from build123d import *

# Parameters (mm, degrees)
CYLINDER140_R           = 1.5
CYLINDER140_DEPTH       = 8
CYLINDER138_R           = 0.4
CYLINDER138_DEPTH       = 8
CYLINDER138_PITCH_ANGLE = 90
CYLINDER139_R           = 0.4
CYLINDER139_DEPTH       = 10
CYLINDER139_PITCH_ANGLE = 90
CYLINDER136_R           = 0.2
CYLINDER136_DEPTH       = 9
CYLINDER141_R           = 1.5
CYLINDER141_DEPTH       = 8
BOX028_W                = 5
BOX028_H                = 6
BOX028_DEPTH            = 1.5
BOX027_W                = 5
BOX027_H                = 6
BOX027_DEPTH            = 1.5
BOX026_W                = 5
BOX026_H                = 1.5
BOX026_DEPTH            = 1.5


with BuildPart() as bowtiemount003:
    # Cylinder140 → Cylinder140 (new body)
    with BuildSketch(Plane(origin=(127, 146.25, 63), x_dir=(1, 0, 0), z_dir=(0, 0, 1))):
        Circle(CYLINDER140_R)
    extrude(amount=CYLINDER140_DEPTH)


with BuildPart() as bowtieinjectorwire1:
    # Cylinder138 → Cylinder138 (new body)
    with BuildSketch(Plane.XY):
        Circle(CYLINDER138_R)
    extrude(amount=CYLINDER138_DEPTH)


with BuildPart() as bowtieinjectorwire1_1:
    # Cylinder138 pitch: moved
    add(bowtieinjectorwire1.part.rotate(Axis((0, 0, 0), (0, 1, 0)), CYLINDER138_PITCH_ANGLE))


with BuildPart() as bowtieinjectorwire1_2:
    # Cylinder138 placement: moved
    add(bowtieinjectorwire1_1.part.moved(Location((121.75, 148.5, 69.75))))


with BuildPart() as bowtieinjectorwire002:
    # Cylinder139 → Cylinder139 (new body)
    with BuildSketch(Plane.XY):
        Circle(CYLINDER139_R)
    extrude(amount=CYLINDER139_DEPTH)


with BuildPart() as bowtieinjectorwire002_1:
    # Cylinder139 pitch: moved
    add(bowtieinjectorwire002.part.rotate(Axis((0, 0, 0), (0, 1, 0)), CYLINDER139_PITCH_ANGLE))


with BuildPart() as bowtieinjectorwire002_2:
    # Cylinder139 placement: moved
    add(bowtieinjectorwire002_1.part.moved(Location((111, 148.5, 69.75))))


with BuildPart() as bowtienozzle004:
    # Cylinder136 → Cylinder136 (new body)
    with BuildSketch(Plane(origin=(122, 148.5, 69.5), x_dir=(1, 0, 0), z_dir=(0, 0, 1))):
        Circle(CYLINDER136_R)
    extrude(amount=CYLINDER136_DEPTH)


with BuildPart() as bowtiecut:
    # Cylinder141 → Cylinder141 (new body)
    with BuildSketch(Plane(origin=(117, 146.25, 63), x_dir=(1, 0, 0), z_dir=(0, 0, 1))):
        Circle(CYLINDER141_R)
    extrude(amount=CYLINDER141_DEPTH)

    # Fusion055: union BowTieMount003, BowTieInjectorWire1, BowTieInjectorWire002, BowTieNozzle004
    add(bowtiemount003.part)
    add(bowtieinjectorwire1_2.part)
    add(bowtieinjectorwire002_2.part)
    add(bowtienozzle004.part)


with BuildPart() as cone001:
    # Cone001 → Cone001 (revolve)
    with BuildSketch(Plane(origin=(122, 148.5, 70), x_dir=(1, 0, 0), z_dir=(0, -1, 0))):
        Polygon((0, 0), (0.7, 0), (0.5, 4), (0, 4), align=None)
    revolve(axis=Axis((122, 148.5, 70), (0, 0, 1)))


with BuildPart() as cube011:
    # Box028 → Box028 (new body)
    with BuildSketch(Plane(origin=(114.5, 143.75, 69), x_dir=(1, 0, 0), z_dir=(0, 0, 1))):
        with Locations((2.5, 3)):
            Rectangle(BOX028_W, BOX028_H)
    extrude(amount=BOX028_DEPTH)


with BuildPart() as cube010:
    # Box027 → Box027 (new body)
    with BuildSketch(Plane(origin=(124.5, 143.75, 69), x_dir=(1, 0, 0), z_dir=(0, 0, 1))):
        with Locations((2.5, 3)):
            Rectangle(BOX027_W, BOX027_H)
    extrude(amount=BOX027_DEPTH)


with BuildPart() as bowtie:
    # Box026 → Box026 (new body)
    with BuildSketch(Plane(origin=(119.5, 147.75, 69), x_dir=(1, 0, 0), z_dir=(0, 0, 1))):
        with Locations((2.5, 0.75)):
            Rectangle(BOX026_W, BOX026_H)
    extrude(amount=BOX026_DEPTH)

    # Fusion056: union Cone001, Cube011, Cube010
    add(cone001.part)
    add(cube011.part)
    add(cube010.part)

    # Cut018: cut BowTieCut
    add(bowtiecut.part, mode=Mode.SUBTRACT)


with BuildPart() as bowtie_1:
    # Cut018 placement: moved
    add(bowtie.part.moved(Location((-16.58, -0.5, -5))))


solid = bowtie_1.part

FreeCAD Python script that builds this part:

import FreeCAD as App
import Part
import Sketcher

V = App.Vector
Q = App.Units.Quantity

doc = App.newDocument("Part")
body = doc.addObject("PartDesign::Body", "Body")

# Sketch on XY plane
sketch1 = body.newObject("Sketcher::SketchObject", "Sketch")
sketch1.AttachmentSupport = (doc.getObject("XY_Plane"), [""])
sketch1.MapMode = "FlatFace"
sketch1.AttachmentOffset = App.Placement(V(0, 0, 63), App.Rotation())
sketch1.addGeometry(Part.Circle(V(127, 146.2, 0), V(0, 0, 1), 1.5), False)
sketch1.addConstraint([
    Sketcher.Constraint("Diameter", 0, Q("3 mm")),
    Sketcher.Constraint("DistanceX", -1, 1, 0, 3, Q("127 mm")),
    Sketcher.Constraint("DistanceY", -1, 1, 0, 3, Q("146.25 mm")),
])
pad1 = body.newObject("PartDesign::Pad", "Pad")
pad1.Profile = sketch1
pad1.Length = 8
body2 = doc.addObject("PartDesign::Body", "Body001")

# Sketch on XY plane
sketch2 = body2.newObject("Sketcher::SketchObject", "Sketch001")
sketch2.AttachmentSupport = (doc.getObject("XY_Plane001"), [""])
sketch2.MapMode = "FlatFace"
sketch2.addGeometry(Part.Circle(V(0, 0, 0), V(0, 0, 1), 0.4), False)
sketch2.addConstraint([
    Sketcher.Constraint("Coincident", 0, 3, -1, 1),
    Sketcher.Constraint("Diameter", 0, Q("0.8 mm")),
])
pad2 = body2.newObject("PartDesign::Pad", "Pad001")
pad2.Profile = sketch2
pad2.Length = 8
body3 = doc.addObject("PartDesign::Body", "Body002")
doc.recompute()

body2.Placement = App.Placement(V(0, 0, 0), App.Rotation(V(0, 1, 0), 90))
boolean = body3.newObject("PartDesign::Boolean", "Boolean")
boolean.Type = "Fuse"
boolean.addObjects([body2])
body4 = doc.addObject("PartDesign::Body", "Body003")
doc.recompute()

body3.Placement = App.Placement(V(121.75, 148.5, 69.75), App.Rotation(V(0, 0, 1), 0))
boolean2 = body4.newObject("PartDesign::Boolean", "Boolean001")
boolean2.Type = "Fuse"
boolean2.addObjects([body3])
body5 = doc.addObject("PartDesign::Body", "Body004")

# Sketch on XY plane
sketch3 = body5.newObject("Sketcher::SketchObject", "Sketch002")
sketch3.AttachmentSupport = (doc.getObject("XY_Plane004"), [""])
sketch3.MapMode = "FlatFace"
sketch3.addGeometry(Part.Circle(V(0, 0, 0), V(0, 0, 1), 0.4), False)
sketch3.addConstraint([
    Sketcher.Constraint("Coincident", 0, 3, -1, 1),
    Sketcher.Constraint("Diameter", 0, Q("0.8 mm")),
])
pad3 = body5.newObject("PartDesign::Pad", "Pad002")
pad3.Profile = sketch3
pad3.Length = 10
body6 = doc.addObject("PartDesign::Body", "Body005")
doc.recompute()

body5.Placement = App.Placement(V(0, 0, 0), App.Rotation(V(0, 1, 0), 90))
boolean3 = body6.newObject("PartDesign::Boolean", "Boolean002")
boolean3.Type = "Fuse"
boolean3.addObjects([body5])
body7 = doc.addObject("PartDesign::Body", "Body006")
doc.recompute()

body6.Placement = App.Placement(V(111, 148.5, 69.75), App.Rotation(V(0, 0, 1), 0))
boolean4 = body7.newObject("PartDesign::Boolean", "Boolean003")
boolean4.Type = "Fuse"
boolean4.addObjects([body6])
body8 = doc.addObject("PartDesign::Body", "Body007")

# Sketch on XY plane
sketch4 = body8.newObject("Sketcher::SketchObject", "Sketch003")
sketch4.AttachmentSupport = (doc.getObject("XY_Plane007"), [""])
sketch4.MapMode = "FlatFace"
sketch4.AttachmentOffset = App.Placement(V(0, 0, 69.5), App.Rotation())
sketch4.addGeometry(Part.Circle(V(122, 148.5, 0), V(0, 0, 1), 0.2), False)
sketch4.addConstraint([
    Sketcher.Constraint("Diameter", 0, Q("0.4 mm")),
    Sketcher.Constraint("DistanceX", -1, 1, 0, 3, Q("122 mm")),
    Sketcher.Constraint("DistanceY", -1, 1, 0, 3, Q("148.5 mm")),
])
pad4 = body8.newObject("PartDesign::Pad", "Pad003")
pad4.Profile = sketch4
pad4.Length = 9
body9 = doc.addObject("PartDesign::Body", "Body008")
body9.AllowCompound = True

# Sketch on XY plane
sketch5 = body9.newObject("Sketcher::SketchObject", "Sketch004")
sketch5.AttachmentSupport = (doc.getObject("XY_Plane008"), [""])
sketch5.MapMode = "FlatFace"
sketch5.AttachmentOffset = App.Placement(V(0, 0, 63), App.Rotation())
sketch5.addGeometry(Part.Circle(V(117, 146.2, 0), V(0, 0, 1), 1.5), False)
sketch5.addConstraint([
    Sketcher.Constraint("Diameter", 0, Q("3 mm")),
    Sketcher.Constraint("DistanceX", -1, 1, 0, 3, Q("117 mm")),
    Sketcher.Constraint("DistanceY", -1, 1, 0, 3, Q("146.25 mm")),
])
pad5 = body9.newObject("PartDesign::Pad", "Pad004")
pad5.Profile = sketch5
pad5.Length = 8
doc.recompute()

boolean5 = body9.newObject("PartDesign::Boolean", "Boolean004")
boolean5.Type = "Fuse"
boolean5.addObjects([body])
doc.recompute()

boolean6 = body9.newObject("PartDesign::Boolean", "Boolean005")
boolean6.Type = "Fuse"
boolean6.addObjects([body4])
doc.recompute()

boolean7 = body9.newObject("PartDesign::Boolean", "Boolean006")
boolean7.Type = "Fuse"
boolean7.addObjects([body7])
doc.recompute()

boolean8 = body9.newObject("PartDesign::Boolean", "Boolean007")
boolean8.Type = "Fuse"
boolean8.addObjects([body8])
body10 = doc.addObject("PartDesign::Body", "Body009")

# Sketch on XZ plane
sketch6 = body10.newObject("Sketcher::SketchObject", "Sketch005")
sketch6.AttachmentSupport = (doc.getObject("XZ_Plane009"), [""])
sketch6.MapMode = "FlatFace"
sketch6.AttachmentOffset = App.Placement(V(0, 0, -148.5), App.Rotation())
sketch6.addGeometry([
    Part.LineSegment(V(122, 70, 0), V(122.7, 70, 0)),
    Part.LineSegment(V(122.7, 70, 0), V(122.5, 74, 0)),
    Part.LineSegment(V(122.5, 74, 0), V(122, 74, 0)),
    Part.LineSegment(V(122, 74, 0), V(122, 70, 0)),
], False)
sketch6.addGeometry(Part.LineSegment(V(122, 70, 0), V(122, 74, 0)), True)  # axis
sketch6.addConstraint([
    Sketcher.Constraint("Coincident", 0, 2, 1, 1),
    Sketcher.Constraint("Coincident", 1, 2, 2, 1),
    Sketcher.Constraint("Coincident", 2, 2, 3, 1),
    Sketcher.Constraint("Coincident", 3, 2, 0, 1),
    Sketcher.Constraint("Horizontal", 0),
    Sketcher.Constraint("Horizontal", 2),
    Sketcher.Constraint("Vertical", 3),
    Sketcher.Constraint("Vertical", 4),
    Sketcher.Constraint("Coincident", 4, 1, 3, 2),
    Sketcher.Constraint("Horizontal", 1, 2, 4, 2),
    Sketcher.Constraint("DistanceY", 3, 2, 3, 1, Q("4 mm")),
    Sketcher.Constraint("DistanceX", 0, 1, 0, 2, Q("0.7 mm")),
    Sketcher.Constraint("DistanceX", 2, 2, 2, 1, Q("0.5 mm")),
    Sketcher.Constraint("DistanceY", -1, 1, 0, 2, Q("70 mm")),
    Sketcher.Constraint("DistanceX", -1, 1, 2, 2, Q("122 mm")),
])
revolution = body10.newObject("PartDesign::Revolution", "Revolution")
revolution.Profile = sketch6
revolution.ReferenceAxis = (sketch6, ["Axis0"])
revolution.Angle = 360
body11 = doc.addObject("PartDesign::Body", "Body010")

# Sketch on XY plane
sketch7 = body11.newObject("Sketcher::SketchObject", "Sketch006")
sketch7.AttachmentSupport = (doc.getObject("XY_Plane010"), [""])
sketch7.MapMode = "FlatFace"
sketch7.AttachmentOffset = App.Placement(V(0, 0, 69), App.Rotation())
sketch7.addGeometry([
    Part.LineSegment(V(114, 150, 0), V(114, 144, 0)),
    Part.LineSegment(V(114, 144, 0), V(120, 144, 0)),
    Part.LineSegment(V(120, 144, 0), V(120, 150, 0)),
    Part.LineSegment(V(120, 150, 0), V(114, 150, 0)),
], False)
sketch7.addConstraint([
    Sketcher.Constraint("Coincident", 0, 2, 1, 1),
    Sketcher.Constraint("Coincident", 1, 2, 2, 1),
    Sketcher.Constraint("Coincident", 2, 2, 3, 1),
    Sketcher.Constraint("Coincident", 3, 2, 0, 1),
    Sketcher.Constraint("Vertical", 0),
    Sketcher.Constraint("Horizontal", 1),
    Sketcher.Constraint("Vertical", 2),
    Sketcher.Constraint("Horizontal", 3),
    Sketcher.Constraint("DistanceX", 1, 1, 1, 2, Q("5 mm")),
    Sketcher.Constraint("DistanceY", 0, 2, 0, 1, Q("6 mm")),
    Sketcher.Constraint("DistanceX", -1, 1, 0, 2, Q("114.5 mm")),
    Sketcher.Constraint("DistanceY", -1, 1, 0, 2, Q("143.75 mm")),
])
pad6 = body11.newObject("PartDesign::Pad", "Pad005")
pad6.Profile = sketch7
pad6.Length = 1.5
body12 = doc.addObject("PartDesign::Body", "Body011")

# Sketch on XY plane
sketch8 = body12.newObject("Sketcher::SketchObject", "Sketch007")
sketch8.AttachmentSupport = (doc.getObject("XY_Plane011"), [""])
sketch8.MapMode = "FlatFace"
sketch8.AttachmentOffset = App.Placement(V(0, 0, 69), App.Rotation())
sketch8.addGeometry([
    Part.LineSegment(V(124, 150, 0), V(124, 144, 0)),
    Part.LineSegment(V(124, 144, 0), V(130, 144, 0)),
    Part.LineSegment(V(130, 144, 0), V(130, 150, 0)),
    Part.LineSegment(V(130, 150, 0), V(124, 150, 0)),
], False)
sketch8.addConstraint([
    Sketcher.Constraint("Coincident", 0, 2, 1, 1),
    Sketcher.Constraint("Coincident", 1, 2, 2, 1),
    Sketcher.Constraint("Coincident", 2, 2, 3, 1),
    Sketcher.Constraint("Coincident", 3, 2, 0, 1),
    Sketcher.Constraint("Vertical", 0),
    Sketcher.Constraint("Horizontal", 1),
    Sketcher.Constraint("Vertical", 2),
    Sketcher.Constraint("Horizontal", 3),
    Sketcher.Constraint("DistanceX", 1, 1, 1, 2, Q("5 mm")),
    Sketcher.Constraint("DistanceY", 0, 2, 0, 1, Q("6 mm")),
    Sketcher.Constraint("DistanceX", -1, 1, 0, 2, Q("124.5 mm")),
    Sketcher.Constraint("DistanceY", -1, 1, 0, 2, Q("143.75 mm")),
])
pad7 = body12.newObject("PartDesign::Pad", "Pad006")
pad7.Profile = sketch8
pad7.Length = 1.5
body13 = doc.addObject("PartDesign::Body", "Body012")

# Sketch on XY plane
sketch9 = body13.newObject("Sketcher::SketchObject", "Sketch008")
sketch9.AttachmentSupport = (doc.getObject("XY_Plane012"), [""])
sketch9.MapMode = "FlatFace"
sketch9.AttachmentOffset = App.Placement(V(0, 0, 69), App.Rotation())
sketch9.addGeometry([
    Part.LineSegment(V(119.5, 149.2, 0), V(119.5, 147.8, 0)),
    Part.LineSegment(V(119.5, 147.8, 0), V(124.5, 147.8, 0)),
    Part.LineSegment(V(124.5, 147.8, 0), V(124.5, 149.2, 0)),
    Part.LineSegment(V(124.5, 149.2, 0), V(119.5, 149.2, 0)),
], False)
sketch9.addConstraint([
    Sketcher.Constraint("Coincident", 0, 2, 1, 1),
    Sketcher.Constraint("Coincident", 1, 2, 2, 1),
    Sketcher.Constraint("Coincident", 2, 2, 3, 1),
    Sketcher.Constraint("Coincident", 3, 2, 0, 1),
    Sketcher.Constraint("Vertical", 0),
    Sketcher.Constraint("Horizontal", 1),
    Sketcher.Constraint("Vertical", 2),
    Sketcher.Constraint("Horizontal", 3),
    Sketcher.Constraint("DistanceX", 1, 1, 1, 2, Q("5 mm")),
    Sketcher.Constraint("DistanceY", 0, 2, 0, 1, Q("1.5 mm")),
    Sketcher.Constraint("DistanceX", -1, 1, 0, 2, Q("119.5 mm")),
    Sketcher.Constraint("DistanceY", -1, 1, 0, 2, Q("147.75 mm")),
])
pad8 = body13.newObject("PartDesign::Pad", "Pad007")
pad8.Profile = sketch9
pad8.Length = 1.5
doc.recompute()

boolean9 = body13.newObject("PartDesign::Boolean", "Boolean008")
boolean9.Type = "Fuse"
boolean9.addObjects([body10])
doc.recompute()

boolean10 = body13.newObject("PartDesign::Boolean", "Boolean009")
boolean10.Type = "Fuse"
boolean10.addObjects([body11])
doc.recompute()

boolean11 = body13.newObject("PartDesign::Boolean", "Boolean010")
boolean11.Type = "Fuse"
boolean11.addObjects([body12])
doc.recompute()

boolean12 = body13.newObject("PartDesign::Boolean", "Boolean011")
boolean12.Type = "Cut"
boolean12.addObjects([body9])
body14 = doc.addObject("PartDesign::Body", "Body013")
doc.recompute()

body13.Placement = App.Placement(V(-16.58, -0.5, -5), App.Rotation(V(0, 0, 1), 0))
boolean13 = body14.newObject("PartDesign::Boolean", "Boolean012")
boolean13.Type = "Fuse"
boolean13.addObjects([body13])

doc.recompute()
